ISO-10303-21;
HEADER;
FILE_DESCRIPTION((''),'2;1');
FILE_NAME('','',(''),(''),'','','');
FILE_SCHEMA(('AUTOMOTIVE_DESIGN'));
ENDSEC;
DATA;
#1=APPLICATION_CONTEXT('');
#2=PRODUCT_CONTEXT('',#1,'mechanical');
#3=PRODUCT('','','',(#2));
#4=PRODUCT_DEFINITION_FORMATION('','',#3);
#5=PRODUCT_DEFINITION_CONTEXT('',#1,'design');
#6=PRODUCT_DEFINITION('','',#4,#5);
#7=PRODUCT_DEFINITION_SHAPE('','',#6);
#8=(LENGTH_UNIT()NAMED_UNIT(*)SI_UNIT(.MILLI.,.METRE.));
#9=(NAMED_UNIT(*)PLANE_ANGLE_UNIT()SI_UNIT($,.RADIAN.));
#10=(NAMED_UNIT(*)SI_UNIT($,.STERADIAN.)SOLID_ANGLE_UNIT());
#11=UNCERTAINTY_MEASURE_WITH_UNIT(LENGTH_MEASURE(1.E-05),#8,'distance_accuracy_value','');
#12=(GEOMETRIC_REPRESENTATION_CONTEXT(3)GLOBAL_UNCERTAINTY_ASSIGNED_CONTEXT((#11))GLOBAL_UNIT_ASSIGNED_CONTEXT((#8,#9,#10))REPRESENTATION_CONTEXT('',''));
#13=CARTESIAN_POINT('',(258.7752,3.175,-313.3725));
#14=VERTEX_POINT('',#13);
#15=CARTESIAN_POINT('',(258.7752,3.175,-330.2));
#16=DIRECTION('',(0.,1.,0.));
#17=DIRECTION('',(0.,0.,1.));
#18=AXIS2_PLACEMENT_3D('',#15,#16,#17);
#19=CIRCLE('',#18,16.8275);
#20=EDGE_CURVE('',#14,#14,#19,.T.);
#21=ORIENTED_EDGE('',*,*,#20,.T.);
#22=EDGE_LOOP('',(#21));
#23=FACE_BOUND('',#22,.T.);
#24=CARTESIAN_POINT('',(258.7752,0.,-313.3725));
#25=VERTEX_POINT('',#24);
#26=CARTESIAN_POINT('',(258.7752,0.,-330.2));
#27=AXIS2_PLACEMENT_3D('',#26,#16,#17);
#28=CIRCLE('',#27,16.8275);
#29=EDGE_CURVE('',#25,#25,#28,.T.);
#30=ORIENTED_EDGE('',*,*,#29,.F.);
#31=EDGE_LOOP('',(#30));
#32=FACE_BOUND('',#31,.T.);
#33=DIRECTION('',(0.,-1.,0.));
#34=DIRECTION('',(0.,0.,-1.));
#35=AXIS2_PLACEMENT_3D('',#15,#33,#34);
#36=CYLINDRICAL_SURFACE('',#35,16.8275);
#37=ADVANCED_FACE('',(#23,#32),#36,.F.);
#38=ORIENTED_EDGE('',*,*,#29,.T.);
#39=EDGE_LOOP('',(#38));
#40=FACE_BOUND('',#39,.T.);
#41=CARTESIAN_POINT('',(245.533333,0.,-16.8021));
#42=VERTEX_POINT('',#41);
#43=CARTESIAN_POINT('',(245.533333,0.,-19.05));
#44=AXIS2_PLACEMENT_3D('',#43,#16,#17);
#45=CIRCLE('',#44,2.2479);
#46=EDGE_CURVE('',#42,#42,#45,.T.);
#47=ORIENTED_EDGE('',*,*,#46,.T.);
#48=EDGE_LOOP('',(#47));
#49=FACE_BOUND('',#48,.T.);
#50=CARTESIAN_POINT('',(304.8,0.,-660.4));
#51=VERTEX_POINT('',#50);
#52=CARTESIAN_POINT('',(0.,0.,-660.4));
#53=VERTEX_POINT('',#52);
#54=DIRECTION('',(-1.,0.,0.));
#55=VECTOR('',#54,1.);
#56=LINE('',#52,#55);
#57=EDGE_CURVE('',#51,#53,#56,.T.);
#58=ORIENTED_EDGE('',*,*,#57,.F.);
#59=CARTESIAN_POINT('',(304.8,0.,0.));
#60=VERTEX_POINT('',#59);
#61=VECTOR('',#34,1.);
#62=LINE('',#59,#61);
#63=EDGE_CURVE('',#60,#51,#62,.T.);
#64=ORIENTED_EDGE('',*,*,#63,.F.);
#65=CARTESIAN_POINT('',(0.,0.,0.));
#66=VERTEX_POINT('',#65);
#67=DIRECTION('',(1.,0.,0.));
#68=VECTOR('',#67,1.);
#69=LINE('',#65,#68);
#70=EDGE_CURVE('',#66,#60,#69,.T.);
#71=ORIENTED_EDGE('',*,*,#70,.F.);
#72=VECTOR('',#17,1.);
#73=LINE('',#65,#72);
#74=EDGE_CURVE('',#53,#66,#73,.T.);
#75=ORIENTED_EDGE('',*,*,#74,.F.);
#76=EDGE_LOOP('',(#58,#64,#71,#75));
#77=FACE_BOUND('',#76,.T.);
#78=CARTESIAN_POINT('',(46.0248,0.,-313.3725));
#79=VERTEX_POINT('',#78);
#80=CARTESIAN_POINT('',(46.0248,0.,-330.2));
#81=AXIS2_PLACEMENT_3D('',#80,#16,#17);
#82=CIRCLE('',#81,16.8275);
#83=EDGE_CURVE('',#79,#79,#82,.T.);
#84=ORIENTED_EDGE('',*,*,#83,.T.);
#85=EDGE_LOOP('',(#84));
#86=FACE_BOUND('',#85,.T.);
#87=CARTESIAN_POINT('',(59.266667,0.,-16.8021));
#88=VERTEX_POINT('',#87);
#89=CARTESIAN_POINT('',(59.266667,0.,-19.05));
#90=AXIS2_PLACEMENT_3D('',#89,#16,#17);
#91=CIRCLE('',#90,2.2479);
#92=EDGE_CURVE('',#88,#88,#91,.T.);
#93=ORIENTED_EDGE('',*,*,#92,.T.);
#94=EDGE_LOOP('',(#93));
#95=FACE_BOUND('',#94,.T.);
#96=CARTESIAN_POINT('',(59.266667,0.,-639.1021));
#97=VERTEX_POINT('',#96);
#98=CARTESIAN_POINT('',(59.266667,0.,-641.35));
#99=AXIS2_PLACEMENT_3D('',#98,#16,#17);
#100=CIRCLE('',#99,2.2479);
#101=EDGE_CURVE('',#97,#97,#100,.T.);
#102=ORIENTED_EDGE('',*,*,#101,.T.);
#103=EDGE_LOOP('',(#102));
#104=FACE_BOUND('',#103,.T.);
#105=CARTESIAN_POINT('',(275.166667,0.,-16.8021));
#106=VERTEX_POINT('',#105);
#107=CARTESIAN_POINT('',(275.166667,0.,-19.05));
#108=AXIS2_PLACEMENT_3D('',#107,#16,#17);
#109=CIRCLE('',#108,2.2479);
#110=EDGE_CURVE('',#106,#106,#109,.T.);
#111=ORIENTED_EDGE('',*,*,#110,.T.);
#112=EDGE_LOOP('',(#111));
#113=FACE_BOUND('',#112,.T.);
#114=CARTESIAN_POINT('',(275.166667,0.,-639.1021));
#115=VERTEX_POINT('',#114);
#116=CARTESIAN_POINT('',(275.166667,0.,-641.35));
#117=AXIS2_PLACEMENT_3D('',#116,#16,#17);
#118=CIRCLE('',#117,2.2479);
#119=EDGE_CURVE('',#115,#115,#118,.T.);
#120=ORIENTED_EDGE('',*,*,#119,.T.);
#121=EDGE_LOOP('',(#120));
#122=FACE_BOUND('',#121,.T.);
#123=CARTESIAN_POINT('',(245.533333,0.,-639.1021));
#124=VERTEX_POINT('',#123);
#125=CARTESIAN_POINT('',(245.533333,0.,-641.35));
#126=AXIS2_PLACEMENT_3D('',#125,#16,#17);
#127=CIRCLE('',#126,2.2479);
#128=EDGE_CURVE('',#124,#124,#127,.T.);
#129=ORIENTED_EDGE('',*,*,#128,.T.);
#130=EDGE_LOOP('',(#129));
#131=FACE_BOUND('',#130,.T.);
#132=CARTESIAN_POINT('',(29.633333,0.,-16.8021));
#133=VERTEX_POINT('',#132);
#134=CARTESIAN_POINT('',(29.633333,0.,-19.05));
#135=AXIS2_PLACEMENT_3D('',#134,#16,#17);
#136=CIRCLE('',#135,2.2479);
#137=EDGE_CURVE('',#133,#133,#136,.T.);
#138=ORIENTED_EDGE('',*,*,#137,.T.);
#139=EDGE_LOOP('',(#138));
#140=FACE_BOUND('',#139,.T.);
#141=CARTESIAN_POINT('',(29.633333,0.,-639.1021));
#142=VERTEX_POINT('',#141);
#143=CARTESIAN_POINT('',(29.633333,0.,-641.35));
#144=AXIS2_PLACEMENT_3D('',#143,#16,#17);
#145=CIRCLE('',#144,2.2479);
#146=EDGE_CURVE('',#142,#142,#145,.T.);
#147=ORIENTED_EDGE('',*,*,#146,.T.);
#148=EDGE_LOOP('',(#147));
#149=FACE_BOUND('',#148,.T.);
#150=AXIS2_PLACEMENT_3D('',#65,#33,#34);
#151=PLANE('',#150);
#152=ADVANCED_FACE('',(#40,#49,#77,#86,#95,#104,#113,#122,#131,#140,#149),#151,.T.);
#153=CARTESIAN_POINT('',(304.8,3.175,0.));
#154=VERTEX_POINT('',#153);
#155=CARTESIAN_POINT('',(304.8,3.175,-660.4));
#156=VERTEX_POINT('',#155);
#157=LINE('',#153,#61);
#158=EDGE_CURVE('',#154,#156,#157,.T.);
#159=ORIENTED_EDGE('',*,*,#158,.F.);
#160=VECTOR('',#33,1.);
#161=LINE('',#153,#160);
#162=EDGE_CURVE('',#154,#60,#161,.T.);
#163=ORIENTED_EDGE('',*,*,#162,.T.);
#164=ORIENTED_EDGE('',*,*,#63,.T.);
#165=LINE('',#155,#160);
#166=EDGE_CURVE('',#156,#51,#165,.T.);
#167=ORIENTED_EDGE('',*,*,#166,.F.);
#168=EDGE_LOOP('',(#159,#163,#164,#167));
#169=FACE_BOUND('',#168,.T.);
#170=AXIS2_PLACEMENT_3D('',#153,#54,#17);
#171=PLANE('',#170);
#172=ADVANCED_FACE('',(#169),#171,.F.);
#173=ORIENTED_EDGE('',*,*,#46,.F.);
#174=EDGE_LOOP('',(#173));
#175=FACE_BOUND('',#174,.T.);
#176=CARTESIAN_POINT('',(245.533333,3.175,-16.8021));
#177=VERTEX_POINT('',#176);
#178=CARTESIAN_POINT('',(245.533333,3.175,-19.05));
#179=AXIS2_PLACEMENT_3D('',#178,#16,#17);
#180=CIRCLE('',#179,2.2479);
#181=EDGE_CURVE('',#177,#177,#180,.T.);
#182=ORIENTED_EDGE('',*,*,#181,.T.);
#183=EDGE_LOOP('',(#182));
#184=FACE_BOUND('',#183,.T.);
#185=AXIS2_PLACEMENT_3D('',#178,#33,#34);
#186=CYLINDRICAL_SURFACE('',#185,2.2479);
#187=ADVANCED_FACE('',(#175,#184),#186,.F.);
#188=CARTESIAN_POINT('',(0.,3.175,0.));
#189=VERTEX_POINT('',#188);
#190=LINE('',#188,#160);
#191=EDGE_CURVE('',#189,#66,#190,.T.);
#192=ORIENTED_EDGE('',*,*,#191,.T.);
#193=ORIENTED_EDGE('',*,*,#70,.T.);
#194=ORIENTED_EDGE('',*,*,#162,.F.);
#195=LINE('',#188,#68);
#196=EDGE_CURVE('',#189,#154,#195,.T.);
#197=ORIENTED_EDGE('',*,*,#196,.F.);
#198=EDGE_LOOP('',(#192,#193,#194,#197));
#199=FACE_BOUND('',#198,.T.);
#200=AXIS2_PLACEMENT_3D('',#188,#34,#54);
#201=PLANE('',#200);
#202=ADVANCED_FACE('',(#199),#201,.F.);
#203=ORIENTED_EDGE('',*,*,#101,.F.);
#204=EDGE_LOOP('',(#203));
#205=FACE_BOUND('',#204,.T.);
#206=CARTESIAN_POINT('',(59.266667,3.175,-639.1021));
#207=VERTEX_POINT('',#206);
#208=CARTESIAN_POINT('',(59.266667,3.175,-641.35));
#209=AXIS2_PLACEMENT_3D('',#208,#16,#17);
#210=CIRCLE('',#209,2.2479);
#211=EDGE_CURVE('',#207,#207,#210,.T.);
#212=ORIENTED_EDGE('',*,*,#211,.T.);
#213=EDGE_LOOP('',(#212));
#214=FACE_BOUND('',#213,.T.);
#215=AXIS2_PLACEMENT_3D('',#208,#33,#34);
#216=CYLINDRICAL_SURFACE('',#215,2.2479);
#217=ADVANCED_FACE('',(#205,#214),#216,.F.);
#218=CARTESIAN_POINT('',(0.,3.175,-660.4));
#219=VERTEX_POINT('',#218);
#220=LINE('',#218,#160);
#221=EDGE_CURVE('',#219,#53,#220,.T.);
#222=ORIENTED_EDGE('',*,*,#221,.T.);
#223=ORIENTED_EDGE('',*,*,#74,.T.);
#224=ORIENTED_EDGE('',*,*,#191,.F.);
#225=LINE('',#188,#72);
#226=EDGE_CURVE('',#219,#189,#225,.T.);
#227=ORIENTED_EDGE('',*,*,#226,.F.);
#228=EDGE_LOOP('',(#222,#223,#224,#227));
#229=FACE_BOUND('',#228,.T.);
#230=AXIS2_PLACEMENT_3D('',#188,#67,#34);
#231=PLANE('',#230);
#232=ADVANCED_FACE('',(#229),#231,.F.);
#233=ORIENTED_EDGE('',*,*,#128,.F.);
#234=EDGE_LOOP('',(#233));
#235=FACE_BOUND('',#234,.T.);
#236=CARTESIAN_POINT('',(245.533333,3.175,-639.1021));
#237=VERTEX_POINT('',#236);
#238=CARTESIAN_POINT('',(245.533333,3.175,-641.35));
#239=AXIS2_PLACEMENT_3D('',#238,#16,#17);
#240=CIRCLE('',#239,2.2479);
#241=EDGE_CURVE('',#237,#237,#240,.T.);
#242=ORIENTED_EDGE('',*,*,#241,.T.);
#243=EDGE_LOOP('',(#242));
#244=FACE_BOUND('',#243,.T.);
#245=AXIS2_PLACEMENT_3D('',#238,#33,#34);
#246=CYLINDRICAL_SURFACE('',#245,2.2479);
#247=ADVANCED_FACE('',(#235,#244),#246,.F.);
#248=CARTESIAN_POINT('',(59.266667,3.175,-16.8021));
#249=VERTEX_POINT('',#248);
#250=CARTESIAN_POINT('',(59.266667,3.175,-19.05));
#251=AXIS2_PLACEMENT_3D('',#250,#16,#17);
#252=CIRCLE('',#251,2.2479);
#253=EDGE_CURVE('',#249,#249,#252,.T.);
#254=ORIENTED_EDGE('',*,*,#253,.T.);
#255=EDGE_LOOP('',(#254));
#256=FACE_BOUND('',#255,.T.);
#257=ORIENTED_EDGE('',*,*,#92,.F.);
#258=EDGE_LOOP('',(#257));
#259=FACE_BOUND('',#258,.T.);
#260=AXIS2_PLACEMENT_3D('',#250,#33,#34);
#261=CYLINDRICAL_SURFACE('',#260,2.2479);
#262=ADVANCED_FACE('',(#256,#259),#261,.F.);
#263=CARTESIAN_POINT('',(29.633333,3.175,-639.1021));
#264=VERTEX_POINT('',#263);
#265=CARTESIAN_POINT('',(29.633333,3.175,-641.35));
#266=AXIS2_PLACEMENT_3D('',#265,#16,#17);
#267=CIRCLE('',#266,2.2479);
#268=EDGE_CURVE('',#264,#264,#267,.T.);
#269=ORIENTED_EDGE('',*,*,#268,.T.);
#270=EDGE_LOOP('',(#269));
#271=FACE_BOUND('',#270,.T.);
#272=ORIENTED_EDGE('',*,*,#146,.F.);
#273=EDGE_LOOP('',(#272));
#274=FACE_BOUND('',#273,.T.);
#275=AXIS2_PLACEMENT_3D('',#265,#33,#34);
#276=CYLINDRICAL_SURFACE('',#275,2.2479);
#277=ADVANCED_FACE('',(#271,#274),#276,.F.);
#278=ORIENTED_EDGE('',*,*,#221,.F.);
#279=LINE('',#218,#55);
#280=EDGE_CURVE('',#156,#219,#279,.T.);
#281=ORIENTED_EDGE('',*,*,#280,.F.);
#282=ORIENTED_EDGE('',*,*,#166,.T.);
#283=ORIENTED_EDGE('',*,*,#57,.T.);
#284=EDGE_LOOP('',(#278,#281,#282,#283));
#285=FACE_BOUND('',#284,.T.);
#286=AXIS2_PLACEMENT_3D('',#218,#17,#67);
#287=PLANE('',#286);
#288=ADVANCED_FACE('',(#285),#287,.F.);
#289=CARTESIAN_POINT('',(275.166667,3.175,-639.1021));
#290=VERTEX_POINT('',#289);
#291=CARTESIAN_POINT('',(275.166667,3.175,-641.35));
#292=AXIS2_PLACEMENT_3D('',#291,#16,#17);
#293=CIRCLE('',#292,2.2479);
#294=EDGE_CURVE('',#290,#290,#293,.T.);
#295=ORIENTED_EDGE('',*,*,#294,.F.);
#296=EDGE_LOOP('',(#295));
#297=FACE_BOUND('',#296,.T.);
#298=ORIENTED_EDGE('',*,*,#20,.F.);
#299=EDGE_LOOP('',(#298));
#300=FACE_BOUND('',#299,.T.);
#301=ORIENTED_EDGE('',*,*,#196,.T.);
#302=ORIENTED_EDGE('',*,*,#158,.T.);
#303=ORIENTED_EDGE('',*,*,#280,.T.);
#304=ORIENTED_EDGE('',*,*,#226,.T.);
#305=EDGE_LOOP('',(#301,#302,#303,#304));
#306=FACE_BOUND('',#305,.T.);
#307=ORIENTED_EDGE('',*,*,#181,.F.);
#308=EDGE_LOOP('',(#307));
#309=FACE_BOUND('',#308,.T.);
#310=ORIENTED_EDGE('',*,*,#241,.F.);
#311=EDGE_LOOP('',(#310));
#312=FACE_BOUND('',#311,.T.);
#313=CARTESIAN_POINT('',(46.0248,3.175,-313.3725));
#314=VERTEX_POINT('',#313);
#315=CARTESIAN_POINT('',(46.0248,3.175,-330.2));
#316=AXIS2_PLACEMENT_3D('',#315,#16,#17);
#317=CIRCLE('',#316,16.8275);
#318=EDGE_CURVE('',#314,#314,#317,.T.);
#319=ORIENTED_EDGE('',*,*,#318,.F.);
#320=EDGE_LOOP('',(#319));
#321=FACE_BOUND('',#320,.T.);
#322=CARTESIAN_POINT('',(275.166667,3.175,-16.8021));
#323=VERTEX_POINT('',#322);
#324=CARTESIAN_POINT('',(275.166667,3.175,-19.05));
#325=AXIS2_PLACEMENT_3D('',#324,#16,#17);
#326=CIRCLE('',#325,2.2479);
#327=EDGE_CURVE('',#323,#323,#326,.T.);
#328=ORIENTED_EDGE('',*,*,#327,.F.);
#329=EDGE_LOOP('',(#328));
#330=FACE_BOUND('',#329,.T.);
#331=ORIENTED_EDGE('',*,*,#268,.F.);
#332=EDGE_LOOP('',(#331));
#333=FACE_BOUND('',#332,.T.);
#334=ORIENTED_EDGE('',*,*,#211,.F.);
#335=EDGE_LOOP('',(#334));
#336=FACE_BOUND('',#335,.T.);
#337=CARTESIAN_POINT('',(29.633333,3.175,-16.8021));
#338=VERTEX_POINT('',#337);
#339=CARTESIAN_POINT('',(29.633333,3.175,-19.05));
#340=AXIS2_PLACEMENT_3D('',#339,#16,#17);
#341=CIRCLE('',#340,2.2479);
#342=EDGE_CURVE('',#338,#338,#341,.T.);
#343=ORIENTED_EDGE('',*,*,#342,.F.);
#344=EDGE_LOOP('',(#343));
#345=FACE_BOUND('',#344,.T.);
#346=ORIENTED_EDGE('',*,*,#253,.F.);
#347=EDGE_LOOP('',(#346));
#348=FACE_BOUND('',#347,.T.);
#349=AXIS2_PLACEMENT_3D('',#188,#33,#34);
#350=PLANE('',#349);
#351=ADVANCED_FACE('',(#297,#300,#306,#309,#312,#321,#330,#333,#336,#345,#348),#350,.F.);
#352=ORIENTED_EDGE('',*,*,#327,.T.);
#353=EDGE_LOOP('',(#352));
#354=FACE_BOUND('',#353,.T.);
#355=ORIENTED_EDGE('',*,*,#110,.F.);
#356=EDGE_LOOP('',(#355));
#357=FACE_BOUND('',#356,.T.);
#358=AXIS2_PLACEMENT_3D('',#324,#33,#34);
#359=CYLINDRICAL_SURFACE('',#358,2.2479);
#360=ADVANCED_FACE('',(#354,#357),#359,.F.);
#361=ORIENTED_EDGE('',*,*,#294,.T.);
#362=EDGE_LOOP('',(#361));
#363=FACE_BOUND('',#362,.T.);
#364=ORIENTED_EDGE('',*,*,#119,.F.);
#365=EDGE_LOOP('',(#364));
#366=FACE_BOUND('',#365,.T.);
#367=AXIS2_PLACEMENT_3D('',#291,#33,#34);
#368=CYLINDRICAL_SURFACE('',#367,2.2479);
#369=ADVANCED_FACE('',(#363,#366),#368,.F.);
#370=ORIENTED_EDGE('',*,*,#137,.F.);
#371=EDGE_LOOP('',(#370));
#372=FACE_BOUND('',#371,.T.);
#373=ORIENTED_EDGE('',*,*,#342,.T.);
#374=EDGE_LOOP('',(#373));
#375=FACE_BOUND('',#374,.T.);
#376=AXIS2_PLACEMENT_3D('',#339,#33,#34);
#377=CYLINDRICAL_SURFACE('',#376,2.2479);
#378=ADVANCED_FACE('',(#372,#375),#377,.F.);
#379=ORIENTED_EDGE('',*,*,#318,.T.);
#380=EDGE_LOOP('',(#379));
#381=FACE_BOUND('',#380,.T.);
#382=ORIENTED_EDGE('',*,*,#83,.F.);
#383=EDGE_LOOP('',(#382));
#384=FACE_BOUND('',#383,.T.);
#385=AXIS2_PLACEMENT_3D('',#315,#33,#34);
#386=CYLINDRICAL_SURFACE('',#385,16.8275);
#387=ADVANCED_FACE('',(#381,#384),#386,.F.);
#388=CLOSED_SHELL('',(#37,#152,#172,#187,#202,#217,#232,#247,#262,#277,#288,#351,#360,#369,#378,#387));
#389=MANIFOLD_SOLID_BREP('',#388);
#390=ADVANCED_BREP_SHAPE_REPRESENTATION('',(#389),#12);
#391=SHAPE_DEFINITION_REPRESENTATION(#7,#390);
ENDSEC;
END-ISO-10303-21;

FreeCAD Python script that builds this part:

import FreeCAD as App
import Part
import Sketcher
Q = App.Units.Quantity


def add_polygon(sketch, points):
    """Adds a closed chain of lines whose ends are joined by coincident constraints."""
    first, n = sketch.GeometryCount, len(points)
    for a, b in zip(points, points[1:] + points[:1]):
        sketch.addGeometry(Part.LineSegment(App.Vector(*a, 0), App.Vector(*b, 0)), False)
    for i in range(n):
        sketch.addConstraint(Sketcher.Constraint("Coincident", first + i, 2, first + (i + 1) % n, 1))

doc = App.newDocument("Part")
params = doc.addObject("Spreadsheet::Sheet", "Params")
for row, (alias, value) in enumerate([
    ("sketch1_width", "12 in"),
    ("sketch1_height", "26 in"),
    ("sketch1_diameter", "0.177 in"),
    ("sketch1_diameter2", "1.325 in"),
    ("pad1_length", "0.125 in"),
], start=1):
    params.set(f"A{row}", alias)
    params.set(f"B{row}", "=" + value)
    params.setAlias(f"B{row}", alias)

body = doc.addObject("PartDesign::Body", "Body")

# Sketch on XZ plane
sketch1 = doc.addObject("Sketcher::SketchObject", "Sketch")
body.addObject(sketch1)
sketch1.AttachmentSupport = (doc.XZ_Plane, [""])
sketch1.MapMode = "FlatFace"
add_polygon(sketch1, [(0, -660.4), (0, 0), (304.8, 0), (304.8, -660.4)])  # lines 0-3
sketch1.addGeometry(Part.Circle(App.Vector(29.633333, -19.05, 0), App.Vector(0, 0, 1), 2.2479), False)  # 4
sketch1.addGeometry(Part.Circle(App.Vector(59.266667, -19.05, 0), App.Vector(0, 0, 1), 2.2479), False)  # 5
sketch1.addGeometry(Part.Circle(App.Vector(46.0248, -330.2, 0), App.Vector(0, 0, 1), 16.8275), False)  # 6
sketch1.addGeometry(Part.Circle(App.Vector(245.533333, -19.05, 0), App.Vector(0, 0, 1), 2.2479), False)  # 7
sketch1.addGeometry(Part.Circle(App.Vector(275.166667, -19.05, 0), App.Vector(0, 0, 1), 2.2479), False)  # 8
sketch1.addGeometry(Part.Circle(App.Vector(258.7752, -330.2, 0), App.Vector(0, 0, 1), 16.8275), False)  # 9
sketch1.addGeometry(Part.Circle(App.Vector(29.633333, -641.35, 0), App.Vector(0, 0, 1), 2.2479), False)  # 10
sketch1.addGeometry(Part.Circle(App.Vector(59.266667, -641.35, 0), App.Vector(0, 0, 1), 2.2479), False)  # 11
sketch1.addGeometry(Part.Circle(App.Vector(245.533333, -641.35, 0), App.Vector(0, 0, 1), 2.2479), False)  # 12
sketch1.addGeometry(Part.Circle(App.Vector(275.166667, -641.35, 0), App.Vector(0, 0, 1), 2.2479), False)  # 13
sketch1.addConstraint(Sketcher.Constraint("Vertical", 0))
sketch1.addConstraint(Sketcher.Constraint("Horizontal", 1))
sketch1.addConstraint(Sketcher.Constraint("Vertical", 2))
sketch1.addConstraint(Sketcher.Constraint("Horizontal", 3))
sketch1.addConstraint(Sketcher.Constraint("Coincident", 0, 2, -1, 1))
sketch1.addConstraint(Sketcher.Constraint("Equal", 4, 5))
sketch1.addConstraint(Sketcher.Constraint("Equal", 5, 7))
sketch1.addConstraint(Sketcher.Constraint("Equal", 7, 8))
sketch1.addConstraint(Sketcher.Constraint("Equal", 6, 9))
sketch1.addConstraint(Sketcher.Constraint("Equal", 8, 10))
sketch1.addConstraint(Sketcher.Constraint("Equal", 10, 11))
sketch1.addConstraint(Sketcher.Constraint("Equal", 11, 12))
sketch1.addConstraint(Sketcher.Constraint("Equal", 12, 13))
sketch1.addConstraint(Sketcher.Constraint("Horizontal", 4, 3, 5, 3))
sketch1.addConstraint(Sketcher.Constraint("Horizontal", 5, 3, 7, 3))
sketch1.addConstraint(Sketcher.Constraint("Horizontal", 7, 3, 8, 3))
sketch1.addConstraint(Sketcher.Constraint("Horizontal", 6, 3, 9, 3))
sketch1.addConstraint(Sketcher.Constraint("Horizontal", 10, 3, 11, 3))
sketch1.addConstraint(Sketcher.Constraint("Horizontal", 11, 3, 12, 3))
sketch1.addConstraint(Sketcher.Constraint("Horizontal", 12, 3, 13, 3))
sketch1.addConstraint(Sketcher.Constraint("Vertical", 4, 3, 10, 3))
sketch1.addConstraint(Sketcher.Constraint("Vertical", 5, 3, 11, 3))
sketch1.addConstraint(Sketcher.Constraint("Vertical", 7, 3, 12, 3))
sketch1.addConstraint(Sketcher.Constraint("Vertical", 8, 3, 13, 3))
sketch1.addConstraint(Sketcher.Constraint("DistanceX", 1, 1, 1, 2, Q("12 in")))
sketch1.addConstraint(Sketcher.Constraint("DistanceY", 0, 1, 0, 2, Q("26 in")))
sketch1.addConstraint(Sketcher.Constraint("Diameter", 4, Q("0.177 in")))
sketch1.addConstraint(Sketcher.Constraint("Diameter", 6, Q("1.325 in")))
sketch1.addConstraint(Sketcher.Constraint("DistanceY", 6, 3, -1, 1, Q("13 in")))
sketch1.addConstraint(Sketcher.Constraint("DistanceX", 4, 3, 7, 3, Q("8.5 in")))
sketch1.addConstraint(Sketcher.Constraint("DistanceX", 5, 3, 8, 3, Q("8.5 in")))
sketch1.addConstraint(Sketcher.Constraint("DistanceY", 10, 3, 4, 3, Q("24.5 in")))
sketch1.addConstraint(Sketcher.Constraint("DistanceY", 4, 3, -1, 1, Q("0.75 in")))
sketch1.addConstraint(Sketcher.Constraint("DistanceX", -1, 1, 6, 3, Q("1.812 in")))
sketch1.addConstraint(Sketcher.Constraint("DistanceX", -1, 1, 9, 3, Q("10.188 in")))
sketch1.addConstraint(Sketcher.Constraint("DistanceX", -1, 1, 4, 3, Q("29.633333 mm")))
sketch1.addConstraint(Sketcher.Constraint("DistanceX", -1, 1, 5, 3, Q("59.266667 mm")))
sketch1.setExpression("Constraints[28]", "Params.sketch1_width")
sketch1.setExpression("Constraints[29]", "Params.sketch1_height")
sketch1.setExpression("Constraints[30]", "Params.sketch1_diameter")
sketch1.setExpression("Constraints[31]", "Params.sketch1_diameter2")
pad1 = doc.addObject("PartDesign::Pad", "Pad")
body.addObject(pad1)
pad1.Profile = sketch1
pad1.setExpression("Length", "Params.pad1_length")
pad1.Reversed = True

doc.recompute()
